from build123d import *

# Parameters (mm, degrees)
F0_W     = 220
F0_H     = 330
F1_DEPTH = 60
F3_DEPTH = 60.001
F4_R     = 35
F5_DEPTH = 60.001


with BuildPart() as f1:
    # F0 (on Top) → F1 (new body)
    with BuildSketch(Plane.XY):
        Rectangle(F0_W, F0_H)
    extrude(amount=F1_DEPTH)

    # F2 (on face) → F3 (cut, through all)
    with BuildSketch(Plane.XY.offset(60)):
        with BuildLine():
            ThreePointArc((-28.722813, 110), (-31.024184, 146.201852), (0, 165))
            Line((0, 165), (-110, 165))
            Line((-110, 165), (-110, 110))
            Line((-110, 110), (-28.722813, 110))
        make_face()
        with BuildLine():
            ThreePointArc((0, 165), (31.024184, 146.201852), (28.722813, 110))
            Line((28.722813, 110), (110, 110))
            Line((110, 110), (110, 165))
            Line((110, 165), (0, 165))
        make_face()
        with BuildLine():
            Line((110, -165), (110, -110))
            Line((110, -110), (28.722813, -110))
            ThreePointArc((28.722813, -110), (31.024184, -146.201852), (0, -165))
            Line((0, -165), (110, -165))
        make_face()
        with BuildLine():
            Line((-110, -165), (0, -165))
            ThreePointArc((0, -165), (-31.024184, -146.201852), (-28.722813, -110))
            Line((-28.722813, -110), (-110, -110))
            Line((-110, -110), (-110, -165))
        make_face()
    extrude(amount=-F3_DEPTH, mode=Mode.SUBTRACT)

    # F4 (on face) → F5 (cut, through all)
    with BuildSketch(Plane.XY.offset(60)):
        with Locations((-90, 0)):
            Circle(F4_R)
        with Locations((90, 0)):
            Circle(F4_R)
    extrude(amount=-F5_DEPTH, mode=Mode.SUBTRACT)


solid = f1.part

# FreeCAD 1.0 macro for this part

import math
import FreeCAD as App
import Part
import Sketcher
from FreeCAD import Vector
Q = App.Units.Quantity


def add_polygon(sketch, points):
    """Adds a closed chain of lines whose ends are joined by coincident constraints."""
    first, n = sketch.GeometryCount, len(points)
    for a, b in zip(points, points[1:] + points[:1]):
        sketch.addGeometry(Part.LineSegment(App.Vector(*a, 0), App.Vector(*b, 0)), False)
    for i in range(n):
        sketch.addConstraint(Sketcher.Constraint("Coincident", first + i, 2, first + (i + 1) % n, 1))

doc = App.newDocument("Part")
body = doc.addObject("PartDesign::Body", "Body")

sketch1 = body.newObject("Sketcher::SketchObject", "Sketch")
sketch1.AttachmentSupport = (doc.getObject("XY_Plane"), [""])
sketch1.MapMode = "FlatFace"
add_polygon(sketch1, [(-110, 165), (-110, -165), (110, -165), (110, 165)])
sketch1.addConstraint([
    Sketcher.Constraint("Vertical", 0),
    Sketcher.Constraint("Horizontal", 1),
    Sketcher.Constraint("Vertical", 2),
    Sketcher.Constraint("Horizontal", 3),
    Sketcher.Constraint("Symmetric", 0, 2, 2, 2, -1, 1),
    Sketcher.Constraint("DistanceX", 1, 1, 1, 2, Q("220 mm")),
    Sketcher.Constraint("DistanceY", 0, 2, 0, 1, Q("330 mm")),
])
pad1 = body.newObject("PartDesign::Pad", "Pad")
pad1.Profile = sketch1
pad1.Length = 60

sketch2 = body.newObject("Sketcher::SketchObject", "Sketch001")
sketch2.AttachmentSupport = (doc.getObject("XY_Plane"), [""])
sketch2.MapMode = "FlatFace"
sketch2.AttachmentOffset = App.Placement(Vector(0, 0, 60), App.Rotation())
sketch2.addGeometry([
    Part.ArcOfCircle(Part.Circle(Vector(0, 130, 0), Vector(0, 0, 1), 35), math.radians(90), math.radians(214.849905)),
    Part.LineSegment(Vector(0, 165, 0), Vector(-110, 165, 0)),
    Part.LineSegment(Vector(-110, 165, 0), Vector(-110, 110, 0)),
    Part.LineSegment(Vector(-110, 110, 0), Vector(-28.722813, 110, 0)),
    Part.ArcOfCircle(Part.Circle(Vector(0, 130, 0), Vector(0, 0, 1), 35), math.radians(-34.849905), math.radians(90)),
    Part.LineSegment(Vector(28.722813, 110, 0), Vector(110, 110, 0)),
    Part.LineSegment(Vector(110, 110, 0), Vector(110, 165, 0)),
    Part.LineSegment(Vector(110, 165, 0), Vector(0, 165, 0)),
    Part.LineSegment(Vector(110, -165, 0), Vector(110, -110, 0)),
    Part.LineSegment(Vector(110, -110, 0), Vector(28.722813, -110, 0)),
    Part.ArcOfCircle(Part.Circle(Vector(0, -130, 0), Vector(0, 0, 1), 35), math.radians(-90), math.radians(34.849905)),
    Part.LineSegment(Vector(0, -165, 0), Vector(110, -165, 0)),
    Part.LineSegment(Vector(-110, -165, 0), Vector(0, -165, 0)),
    Part.ArcOfCircle(Part.Circle(Vector(0, -130, 0), Vector(0, 0, 1), 35), math.radians(145.150095), math.radians(270)),
    Part.LineSegment(Vector(-28.722813, -110, 0), Vector(-110, -110, 0)),
    Part.LineSegment(Vector(-110, -110, 0), Vector(-110, -165, 0)),
], False)
sketch2.addConstraint([
    Sketcher.Constraint("Tangent", 0, 1, 1, 1),
    Sketcher.Constraint("Coincident", 1, 2, 2, 1),
    Sketcher.Constraint("Coincident", 2, 2, 3, 1),
    Sketcher.Constraint("Coincident", 3, 2, 0, 2),
    Sketcher.Constraint("Coincident", 4, 1, 5, 1),
    Sketcher.Constraint("Coincident", 5, 2, 6, 1),
    Sketcher.Constraint("Coincident", 6, 2, 7, 1),
    Sketcher.Constraint("Tangent", 7, 2, 4, 2),
    Sketcher.Constraint("Coincident", 8, 2, 9, 1),
    Sketcher.Constraint("Coincident", 9, 2, 10, 2),
    Sketcher.Constraint("Tangent", 10, 1, 11, 1),
    Sketcher.Constraint("Coincident", 11, 2, 8, 1),
    Sketcher.Constraint("Tangent", 12, 2, 13, 2),
    Sketcher.Constraint("Coincident", 13, 1, 14, 1),
    Sketcher.Constraint("Coincident", 14, 2, 15, 1),
    Sketcher.Constraint("Coincident", 15, 2, 12, 1),
    Sketcher.Constraint("Horizontal", 1),
    Sketcher.Constraint("Vertical", 2),
    Sketcher.Constraint("Horizontal", 3),
    Sketcher.Constraint("Horizontal", 5),
    Sketcher.Constraint("Vertical", 6),
    Sketcher.Constraint("Horizontal", 7),
    Sketcher.Constraint("Vertical", 8),
    Sketcher.Constraint("Horizontal", 9),
    Sketcher.Constraint("Horizontal", 11),
    Sketcher.Constraint("Horizontal", 12),
    Sketcher.Constraint("Horizontal", 14),
    Sketcher.Constraint("Vertical", 15),
    Sketcher.Constraint("Coincident", 4, 3, 0, 3),
    Sketcher.Constraint("Coincident", 13, 3, 10, 3),
    Sketcher.Constraint("Equal", 0, 4),
    Sketcher.Constraint("Equal", 4, 10),
    Sketcher.Constraint("Equal", 10, 13),
    Sketcher.Constraint("Symmetric", 0, 3, 10, 3, -1, 1),
    Sketcher.Constraint("Symmetric", 2, 2, 8, 2, -1, 1),
    Sketcher.Constraint("Symmetric", 5, 2, 14, 2, -1, 1),
    Sketcher.Constraint("Symmetric", 3, 2, 4, 1, -2),
    Sketcher.Constraint("Vertical", 6, 2, 8, 2),
    Sketcher.Constraint("Radius", 0, Q("35 mm")),
    Sketcher.Constraint("DistanceX", 1, 2, 1, 1, Q("110 mm")),
    Sketcher.Constraint("DistanceY", 2, 2, 2, 1, Q("55 mm")),
    Sketcher.Constraint("DistanceY", -1, 1, 0, 3, Q("130 mm")),
])
pocket1 = body.newObject("PartDesign::Pocket", "Pocket")
pocket1.Profile = sketch2
pocket1.Type = "ThroughAll"

sketch3 = body.newObject("Sketcher::SketchObject", "Sketch002")
sketch3.AttachmentSupport = (doc.getObject("XY_Plane"), [""])
sketch3.MapMode = "FlatFace"
sketch3.AttachmentOffset = App.Placement(Vector(0, 0, 60), App.Rotation())
sketch3.addGeometry([
    Part.Circle(Vector(-90, 0, 0), Vector(0, 0, 1), 35),
    Part.Circle(Vector(90, 0, 0), Vector(0, 0, 1), 35),
], False)
sketch3.addConstraint([
    Sketcher.Constraint("Equal", 0, 1),
    Sketcher.Constraint("Symmetric", 0, 3, 1, 3, -1, 1),
    Sketcher.Constraint("PointOnObject", 0, 3, -1),
    Sketcher.Constraint("Diameter", 0, Q("70 mm")),
    Sketcher.Constraint("DistanceX", 0, 3, -1, 1, Q("90 mm")),
])
pocket2 = body.newObject("PartDesign::Pocket", "Pocket001")
pocket2.Profile = sketch3
pocket2.Type = "ThroughAll"

doc.recompute()
